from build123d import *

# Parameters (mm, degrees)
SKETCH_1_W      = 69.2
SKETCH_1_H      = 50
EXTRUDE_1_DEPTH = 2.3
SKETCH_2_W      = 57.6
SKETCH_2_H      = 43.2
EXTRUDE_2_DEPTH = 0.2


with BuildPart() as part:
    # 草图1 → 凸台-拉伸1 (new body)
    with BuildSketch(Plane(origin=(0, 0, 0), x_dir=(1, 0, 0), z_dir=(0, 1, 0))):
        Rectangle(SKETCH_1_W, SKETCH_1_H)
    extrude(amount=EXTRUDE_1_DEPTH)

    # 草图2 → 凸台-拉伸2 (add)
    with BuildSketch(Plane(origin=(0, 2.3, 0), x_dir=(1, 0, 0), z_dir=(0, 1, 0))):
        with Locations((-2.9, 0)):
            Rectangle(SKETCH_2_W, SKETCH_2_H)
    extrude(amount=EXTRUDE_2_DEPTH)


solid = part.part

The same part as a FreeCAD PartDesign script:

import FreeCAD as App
import Part
import Sketcher
Q = App.Units.Quantity


def add_polygon(sketch, points):
    """Adds a closed chain of lines whose ends are joined by coincident constraints."""
    first, n = sketch.GeometryCount, len(points)
    for a, b in zip(points, points[1:] + points[:1]):
        sketch.addGeometry(Part.LineSegment(App.Vector(*a, 0), App.Vector(*b, 0)), False)
    for i in range(n):
        sketch.addConstraint(Sketcher.Constraint("Coincident", first + i, 2, first + (i + 1) % n, 1))

doc = App.newDocument("Part")
body = doc.addObject("PartDesign::Body", "Body")

sketch1 = body.newObject("Sketcher::SketchObject", "Sketch")
sketch1.AttachmentSupport = (doc.getObject("XZ_Plane"), [""])
sketch1.MapMode = "FlatFace"
add_polygon(sketch1, [(-35, -25), (-35, 25), (35, 25), (35, -25)])
sketch1.addConstraint([
    Sketcher.Constraint("Vertical", 0),
    Sketcher.Constraint("Horizontal", 1),
    Sketcher.Constraint("Vertical", 2),
    Sketcher.Constraint("Horizontal", 3),
    Sketcher.Constraint("Symmetric", 0, 2, 2, 2, -1, 1),
    Sketcher.Constraint("DistanceY", 0, 1, 0, 2, Q("50 mm")),
    Sketcher.Constraint("DistanceX", 1, 1, 1, 2, Q("69.2 mm")),
])
pad1 = body.newObject("PartDesign::Pad", "Pad")
pad1.Profile = sketch1
pad1.Length = 2.3
pad1.Reversed = True

sketch2 = body.newObject("Sketcher::SketchObject", "Sketch001")
sketch2.AttachmentSupport = (doc.getObject("XZ_Plane"), [""])
sketch2.MapMode = "FlatFace"
sketch2.AttachmentOffset = App.Placement(App.Vector(0, 0, -2.3), App.Rotation())
add_polygon(sketch2, [(-32, -22), (-32, 22), (26, 22), (26, -22)])
sketch2.addConstraint([
    Sketcher.Constraint("Vertical", 0),
    Sketcher.Constraint("Horizontal", 1),
    Sketcher.Constraint("Vertical", 2),
    Sketcher.Constraint("Horizontal", 3),
    Sketcher.Constraint("DistanceX", 1, 1, 1, 2, Q("57.6 mm")),
    Sketcher.Constraint("DistanceY", 0, 1, 0, 2, Q("43.2 mm")),
    Sketcher.Constraint("DistanceX", 0, 2, -1, 1, Q("31.7 mm")),
    Sketcher.Constraint("DistanceY", -1, 1, 0, 2, Q("21.6 mm")),
])
pad2 = body.newObject("PartDesign::Pad", "Pad001")
pad2.Profile = sketch2
pad2.Length = 0.2
pad2.Reversed = True

doc.recompute()
